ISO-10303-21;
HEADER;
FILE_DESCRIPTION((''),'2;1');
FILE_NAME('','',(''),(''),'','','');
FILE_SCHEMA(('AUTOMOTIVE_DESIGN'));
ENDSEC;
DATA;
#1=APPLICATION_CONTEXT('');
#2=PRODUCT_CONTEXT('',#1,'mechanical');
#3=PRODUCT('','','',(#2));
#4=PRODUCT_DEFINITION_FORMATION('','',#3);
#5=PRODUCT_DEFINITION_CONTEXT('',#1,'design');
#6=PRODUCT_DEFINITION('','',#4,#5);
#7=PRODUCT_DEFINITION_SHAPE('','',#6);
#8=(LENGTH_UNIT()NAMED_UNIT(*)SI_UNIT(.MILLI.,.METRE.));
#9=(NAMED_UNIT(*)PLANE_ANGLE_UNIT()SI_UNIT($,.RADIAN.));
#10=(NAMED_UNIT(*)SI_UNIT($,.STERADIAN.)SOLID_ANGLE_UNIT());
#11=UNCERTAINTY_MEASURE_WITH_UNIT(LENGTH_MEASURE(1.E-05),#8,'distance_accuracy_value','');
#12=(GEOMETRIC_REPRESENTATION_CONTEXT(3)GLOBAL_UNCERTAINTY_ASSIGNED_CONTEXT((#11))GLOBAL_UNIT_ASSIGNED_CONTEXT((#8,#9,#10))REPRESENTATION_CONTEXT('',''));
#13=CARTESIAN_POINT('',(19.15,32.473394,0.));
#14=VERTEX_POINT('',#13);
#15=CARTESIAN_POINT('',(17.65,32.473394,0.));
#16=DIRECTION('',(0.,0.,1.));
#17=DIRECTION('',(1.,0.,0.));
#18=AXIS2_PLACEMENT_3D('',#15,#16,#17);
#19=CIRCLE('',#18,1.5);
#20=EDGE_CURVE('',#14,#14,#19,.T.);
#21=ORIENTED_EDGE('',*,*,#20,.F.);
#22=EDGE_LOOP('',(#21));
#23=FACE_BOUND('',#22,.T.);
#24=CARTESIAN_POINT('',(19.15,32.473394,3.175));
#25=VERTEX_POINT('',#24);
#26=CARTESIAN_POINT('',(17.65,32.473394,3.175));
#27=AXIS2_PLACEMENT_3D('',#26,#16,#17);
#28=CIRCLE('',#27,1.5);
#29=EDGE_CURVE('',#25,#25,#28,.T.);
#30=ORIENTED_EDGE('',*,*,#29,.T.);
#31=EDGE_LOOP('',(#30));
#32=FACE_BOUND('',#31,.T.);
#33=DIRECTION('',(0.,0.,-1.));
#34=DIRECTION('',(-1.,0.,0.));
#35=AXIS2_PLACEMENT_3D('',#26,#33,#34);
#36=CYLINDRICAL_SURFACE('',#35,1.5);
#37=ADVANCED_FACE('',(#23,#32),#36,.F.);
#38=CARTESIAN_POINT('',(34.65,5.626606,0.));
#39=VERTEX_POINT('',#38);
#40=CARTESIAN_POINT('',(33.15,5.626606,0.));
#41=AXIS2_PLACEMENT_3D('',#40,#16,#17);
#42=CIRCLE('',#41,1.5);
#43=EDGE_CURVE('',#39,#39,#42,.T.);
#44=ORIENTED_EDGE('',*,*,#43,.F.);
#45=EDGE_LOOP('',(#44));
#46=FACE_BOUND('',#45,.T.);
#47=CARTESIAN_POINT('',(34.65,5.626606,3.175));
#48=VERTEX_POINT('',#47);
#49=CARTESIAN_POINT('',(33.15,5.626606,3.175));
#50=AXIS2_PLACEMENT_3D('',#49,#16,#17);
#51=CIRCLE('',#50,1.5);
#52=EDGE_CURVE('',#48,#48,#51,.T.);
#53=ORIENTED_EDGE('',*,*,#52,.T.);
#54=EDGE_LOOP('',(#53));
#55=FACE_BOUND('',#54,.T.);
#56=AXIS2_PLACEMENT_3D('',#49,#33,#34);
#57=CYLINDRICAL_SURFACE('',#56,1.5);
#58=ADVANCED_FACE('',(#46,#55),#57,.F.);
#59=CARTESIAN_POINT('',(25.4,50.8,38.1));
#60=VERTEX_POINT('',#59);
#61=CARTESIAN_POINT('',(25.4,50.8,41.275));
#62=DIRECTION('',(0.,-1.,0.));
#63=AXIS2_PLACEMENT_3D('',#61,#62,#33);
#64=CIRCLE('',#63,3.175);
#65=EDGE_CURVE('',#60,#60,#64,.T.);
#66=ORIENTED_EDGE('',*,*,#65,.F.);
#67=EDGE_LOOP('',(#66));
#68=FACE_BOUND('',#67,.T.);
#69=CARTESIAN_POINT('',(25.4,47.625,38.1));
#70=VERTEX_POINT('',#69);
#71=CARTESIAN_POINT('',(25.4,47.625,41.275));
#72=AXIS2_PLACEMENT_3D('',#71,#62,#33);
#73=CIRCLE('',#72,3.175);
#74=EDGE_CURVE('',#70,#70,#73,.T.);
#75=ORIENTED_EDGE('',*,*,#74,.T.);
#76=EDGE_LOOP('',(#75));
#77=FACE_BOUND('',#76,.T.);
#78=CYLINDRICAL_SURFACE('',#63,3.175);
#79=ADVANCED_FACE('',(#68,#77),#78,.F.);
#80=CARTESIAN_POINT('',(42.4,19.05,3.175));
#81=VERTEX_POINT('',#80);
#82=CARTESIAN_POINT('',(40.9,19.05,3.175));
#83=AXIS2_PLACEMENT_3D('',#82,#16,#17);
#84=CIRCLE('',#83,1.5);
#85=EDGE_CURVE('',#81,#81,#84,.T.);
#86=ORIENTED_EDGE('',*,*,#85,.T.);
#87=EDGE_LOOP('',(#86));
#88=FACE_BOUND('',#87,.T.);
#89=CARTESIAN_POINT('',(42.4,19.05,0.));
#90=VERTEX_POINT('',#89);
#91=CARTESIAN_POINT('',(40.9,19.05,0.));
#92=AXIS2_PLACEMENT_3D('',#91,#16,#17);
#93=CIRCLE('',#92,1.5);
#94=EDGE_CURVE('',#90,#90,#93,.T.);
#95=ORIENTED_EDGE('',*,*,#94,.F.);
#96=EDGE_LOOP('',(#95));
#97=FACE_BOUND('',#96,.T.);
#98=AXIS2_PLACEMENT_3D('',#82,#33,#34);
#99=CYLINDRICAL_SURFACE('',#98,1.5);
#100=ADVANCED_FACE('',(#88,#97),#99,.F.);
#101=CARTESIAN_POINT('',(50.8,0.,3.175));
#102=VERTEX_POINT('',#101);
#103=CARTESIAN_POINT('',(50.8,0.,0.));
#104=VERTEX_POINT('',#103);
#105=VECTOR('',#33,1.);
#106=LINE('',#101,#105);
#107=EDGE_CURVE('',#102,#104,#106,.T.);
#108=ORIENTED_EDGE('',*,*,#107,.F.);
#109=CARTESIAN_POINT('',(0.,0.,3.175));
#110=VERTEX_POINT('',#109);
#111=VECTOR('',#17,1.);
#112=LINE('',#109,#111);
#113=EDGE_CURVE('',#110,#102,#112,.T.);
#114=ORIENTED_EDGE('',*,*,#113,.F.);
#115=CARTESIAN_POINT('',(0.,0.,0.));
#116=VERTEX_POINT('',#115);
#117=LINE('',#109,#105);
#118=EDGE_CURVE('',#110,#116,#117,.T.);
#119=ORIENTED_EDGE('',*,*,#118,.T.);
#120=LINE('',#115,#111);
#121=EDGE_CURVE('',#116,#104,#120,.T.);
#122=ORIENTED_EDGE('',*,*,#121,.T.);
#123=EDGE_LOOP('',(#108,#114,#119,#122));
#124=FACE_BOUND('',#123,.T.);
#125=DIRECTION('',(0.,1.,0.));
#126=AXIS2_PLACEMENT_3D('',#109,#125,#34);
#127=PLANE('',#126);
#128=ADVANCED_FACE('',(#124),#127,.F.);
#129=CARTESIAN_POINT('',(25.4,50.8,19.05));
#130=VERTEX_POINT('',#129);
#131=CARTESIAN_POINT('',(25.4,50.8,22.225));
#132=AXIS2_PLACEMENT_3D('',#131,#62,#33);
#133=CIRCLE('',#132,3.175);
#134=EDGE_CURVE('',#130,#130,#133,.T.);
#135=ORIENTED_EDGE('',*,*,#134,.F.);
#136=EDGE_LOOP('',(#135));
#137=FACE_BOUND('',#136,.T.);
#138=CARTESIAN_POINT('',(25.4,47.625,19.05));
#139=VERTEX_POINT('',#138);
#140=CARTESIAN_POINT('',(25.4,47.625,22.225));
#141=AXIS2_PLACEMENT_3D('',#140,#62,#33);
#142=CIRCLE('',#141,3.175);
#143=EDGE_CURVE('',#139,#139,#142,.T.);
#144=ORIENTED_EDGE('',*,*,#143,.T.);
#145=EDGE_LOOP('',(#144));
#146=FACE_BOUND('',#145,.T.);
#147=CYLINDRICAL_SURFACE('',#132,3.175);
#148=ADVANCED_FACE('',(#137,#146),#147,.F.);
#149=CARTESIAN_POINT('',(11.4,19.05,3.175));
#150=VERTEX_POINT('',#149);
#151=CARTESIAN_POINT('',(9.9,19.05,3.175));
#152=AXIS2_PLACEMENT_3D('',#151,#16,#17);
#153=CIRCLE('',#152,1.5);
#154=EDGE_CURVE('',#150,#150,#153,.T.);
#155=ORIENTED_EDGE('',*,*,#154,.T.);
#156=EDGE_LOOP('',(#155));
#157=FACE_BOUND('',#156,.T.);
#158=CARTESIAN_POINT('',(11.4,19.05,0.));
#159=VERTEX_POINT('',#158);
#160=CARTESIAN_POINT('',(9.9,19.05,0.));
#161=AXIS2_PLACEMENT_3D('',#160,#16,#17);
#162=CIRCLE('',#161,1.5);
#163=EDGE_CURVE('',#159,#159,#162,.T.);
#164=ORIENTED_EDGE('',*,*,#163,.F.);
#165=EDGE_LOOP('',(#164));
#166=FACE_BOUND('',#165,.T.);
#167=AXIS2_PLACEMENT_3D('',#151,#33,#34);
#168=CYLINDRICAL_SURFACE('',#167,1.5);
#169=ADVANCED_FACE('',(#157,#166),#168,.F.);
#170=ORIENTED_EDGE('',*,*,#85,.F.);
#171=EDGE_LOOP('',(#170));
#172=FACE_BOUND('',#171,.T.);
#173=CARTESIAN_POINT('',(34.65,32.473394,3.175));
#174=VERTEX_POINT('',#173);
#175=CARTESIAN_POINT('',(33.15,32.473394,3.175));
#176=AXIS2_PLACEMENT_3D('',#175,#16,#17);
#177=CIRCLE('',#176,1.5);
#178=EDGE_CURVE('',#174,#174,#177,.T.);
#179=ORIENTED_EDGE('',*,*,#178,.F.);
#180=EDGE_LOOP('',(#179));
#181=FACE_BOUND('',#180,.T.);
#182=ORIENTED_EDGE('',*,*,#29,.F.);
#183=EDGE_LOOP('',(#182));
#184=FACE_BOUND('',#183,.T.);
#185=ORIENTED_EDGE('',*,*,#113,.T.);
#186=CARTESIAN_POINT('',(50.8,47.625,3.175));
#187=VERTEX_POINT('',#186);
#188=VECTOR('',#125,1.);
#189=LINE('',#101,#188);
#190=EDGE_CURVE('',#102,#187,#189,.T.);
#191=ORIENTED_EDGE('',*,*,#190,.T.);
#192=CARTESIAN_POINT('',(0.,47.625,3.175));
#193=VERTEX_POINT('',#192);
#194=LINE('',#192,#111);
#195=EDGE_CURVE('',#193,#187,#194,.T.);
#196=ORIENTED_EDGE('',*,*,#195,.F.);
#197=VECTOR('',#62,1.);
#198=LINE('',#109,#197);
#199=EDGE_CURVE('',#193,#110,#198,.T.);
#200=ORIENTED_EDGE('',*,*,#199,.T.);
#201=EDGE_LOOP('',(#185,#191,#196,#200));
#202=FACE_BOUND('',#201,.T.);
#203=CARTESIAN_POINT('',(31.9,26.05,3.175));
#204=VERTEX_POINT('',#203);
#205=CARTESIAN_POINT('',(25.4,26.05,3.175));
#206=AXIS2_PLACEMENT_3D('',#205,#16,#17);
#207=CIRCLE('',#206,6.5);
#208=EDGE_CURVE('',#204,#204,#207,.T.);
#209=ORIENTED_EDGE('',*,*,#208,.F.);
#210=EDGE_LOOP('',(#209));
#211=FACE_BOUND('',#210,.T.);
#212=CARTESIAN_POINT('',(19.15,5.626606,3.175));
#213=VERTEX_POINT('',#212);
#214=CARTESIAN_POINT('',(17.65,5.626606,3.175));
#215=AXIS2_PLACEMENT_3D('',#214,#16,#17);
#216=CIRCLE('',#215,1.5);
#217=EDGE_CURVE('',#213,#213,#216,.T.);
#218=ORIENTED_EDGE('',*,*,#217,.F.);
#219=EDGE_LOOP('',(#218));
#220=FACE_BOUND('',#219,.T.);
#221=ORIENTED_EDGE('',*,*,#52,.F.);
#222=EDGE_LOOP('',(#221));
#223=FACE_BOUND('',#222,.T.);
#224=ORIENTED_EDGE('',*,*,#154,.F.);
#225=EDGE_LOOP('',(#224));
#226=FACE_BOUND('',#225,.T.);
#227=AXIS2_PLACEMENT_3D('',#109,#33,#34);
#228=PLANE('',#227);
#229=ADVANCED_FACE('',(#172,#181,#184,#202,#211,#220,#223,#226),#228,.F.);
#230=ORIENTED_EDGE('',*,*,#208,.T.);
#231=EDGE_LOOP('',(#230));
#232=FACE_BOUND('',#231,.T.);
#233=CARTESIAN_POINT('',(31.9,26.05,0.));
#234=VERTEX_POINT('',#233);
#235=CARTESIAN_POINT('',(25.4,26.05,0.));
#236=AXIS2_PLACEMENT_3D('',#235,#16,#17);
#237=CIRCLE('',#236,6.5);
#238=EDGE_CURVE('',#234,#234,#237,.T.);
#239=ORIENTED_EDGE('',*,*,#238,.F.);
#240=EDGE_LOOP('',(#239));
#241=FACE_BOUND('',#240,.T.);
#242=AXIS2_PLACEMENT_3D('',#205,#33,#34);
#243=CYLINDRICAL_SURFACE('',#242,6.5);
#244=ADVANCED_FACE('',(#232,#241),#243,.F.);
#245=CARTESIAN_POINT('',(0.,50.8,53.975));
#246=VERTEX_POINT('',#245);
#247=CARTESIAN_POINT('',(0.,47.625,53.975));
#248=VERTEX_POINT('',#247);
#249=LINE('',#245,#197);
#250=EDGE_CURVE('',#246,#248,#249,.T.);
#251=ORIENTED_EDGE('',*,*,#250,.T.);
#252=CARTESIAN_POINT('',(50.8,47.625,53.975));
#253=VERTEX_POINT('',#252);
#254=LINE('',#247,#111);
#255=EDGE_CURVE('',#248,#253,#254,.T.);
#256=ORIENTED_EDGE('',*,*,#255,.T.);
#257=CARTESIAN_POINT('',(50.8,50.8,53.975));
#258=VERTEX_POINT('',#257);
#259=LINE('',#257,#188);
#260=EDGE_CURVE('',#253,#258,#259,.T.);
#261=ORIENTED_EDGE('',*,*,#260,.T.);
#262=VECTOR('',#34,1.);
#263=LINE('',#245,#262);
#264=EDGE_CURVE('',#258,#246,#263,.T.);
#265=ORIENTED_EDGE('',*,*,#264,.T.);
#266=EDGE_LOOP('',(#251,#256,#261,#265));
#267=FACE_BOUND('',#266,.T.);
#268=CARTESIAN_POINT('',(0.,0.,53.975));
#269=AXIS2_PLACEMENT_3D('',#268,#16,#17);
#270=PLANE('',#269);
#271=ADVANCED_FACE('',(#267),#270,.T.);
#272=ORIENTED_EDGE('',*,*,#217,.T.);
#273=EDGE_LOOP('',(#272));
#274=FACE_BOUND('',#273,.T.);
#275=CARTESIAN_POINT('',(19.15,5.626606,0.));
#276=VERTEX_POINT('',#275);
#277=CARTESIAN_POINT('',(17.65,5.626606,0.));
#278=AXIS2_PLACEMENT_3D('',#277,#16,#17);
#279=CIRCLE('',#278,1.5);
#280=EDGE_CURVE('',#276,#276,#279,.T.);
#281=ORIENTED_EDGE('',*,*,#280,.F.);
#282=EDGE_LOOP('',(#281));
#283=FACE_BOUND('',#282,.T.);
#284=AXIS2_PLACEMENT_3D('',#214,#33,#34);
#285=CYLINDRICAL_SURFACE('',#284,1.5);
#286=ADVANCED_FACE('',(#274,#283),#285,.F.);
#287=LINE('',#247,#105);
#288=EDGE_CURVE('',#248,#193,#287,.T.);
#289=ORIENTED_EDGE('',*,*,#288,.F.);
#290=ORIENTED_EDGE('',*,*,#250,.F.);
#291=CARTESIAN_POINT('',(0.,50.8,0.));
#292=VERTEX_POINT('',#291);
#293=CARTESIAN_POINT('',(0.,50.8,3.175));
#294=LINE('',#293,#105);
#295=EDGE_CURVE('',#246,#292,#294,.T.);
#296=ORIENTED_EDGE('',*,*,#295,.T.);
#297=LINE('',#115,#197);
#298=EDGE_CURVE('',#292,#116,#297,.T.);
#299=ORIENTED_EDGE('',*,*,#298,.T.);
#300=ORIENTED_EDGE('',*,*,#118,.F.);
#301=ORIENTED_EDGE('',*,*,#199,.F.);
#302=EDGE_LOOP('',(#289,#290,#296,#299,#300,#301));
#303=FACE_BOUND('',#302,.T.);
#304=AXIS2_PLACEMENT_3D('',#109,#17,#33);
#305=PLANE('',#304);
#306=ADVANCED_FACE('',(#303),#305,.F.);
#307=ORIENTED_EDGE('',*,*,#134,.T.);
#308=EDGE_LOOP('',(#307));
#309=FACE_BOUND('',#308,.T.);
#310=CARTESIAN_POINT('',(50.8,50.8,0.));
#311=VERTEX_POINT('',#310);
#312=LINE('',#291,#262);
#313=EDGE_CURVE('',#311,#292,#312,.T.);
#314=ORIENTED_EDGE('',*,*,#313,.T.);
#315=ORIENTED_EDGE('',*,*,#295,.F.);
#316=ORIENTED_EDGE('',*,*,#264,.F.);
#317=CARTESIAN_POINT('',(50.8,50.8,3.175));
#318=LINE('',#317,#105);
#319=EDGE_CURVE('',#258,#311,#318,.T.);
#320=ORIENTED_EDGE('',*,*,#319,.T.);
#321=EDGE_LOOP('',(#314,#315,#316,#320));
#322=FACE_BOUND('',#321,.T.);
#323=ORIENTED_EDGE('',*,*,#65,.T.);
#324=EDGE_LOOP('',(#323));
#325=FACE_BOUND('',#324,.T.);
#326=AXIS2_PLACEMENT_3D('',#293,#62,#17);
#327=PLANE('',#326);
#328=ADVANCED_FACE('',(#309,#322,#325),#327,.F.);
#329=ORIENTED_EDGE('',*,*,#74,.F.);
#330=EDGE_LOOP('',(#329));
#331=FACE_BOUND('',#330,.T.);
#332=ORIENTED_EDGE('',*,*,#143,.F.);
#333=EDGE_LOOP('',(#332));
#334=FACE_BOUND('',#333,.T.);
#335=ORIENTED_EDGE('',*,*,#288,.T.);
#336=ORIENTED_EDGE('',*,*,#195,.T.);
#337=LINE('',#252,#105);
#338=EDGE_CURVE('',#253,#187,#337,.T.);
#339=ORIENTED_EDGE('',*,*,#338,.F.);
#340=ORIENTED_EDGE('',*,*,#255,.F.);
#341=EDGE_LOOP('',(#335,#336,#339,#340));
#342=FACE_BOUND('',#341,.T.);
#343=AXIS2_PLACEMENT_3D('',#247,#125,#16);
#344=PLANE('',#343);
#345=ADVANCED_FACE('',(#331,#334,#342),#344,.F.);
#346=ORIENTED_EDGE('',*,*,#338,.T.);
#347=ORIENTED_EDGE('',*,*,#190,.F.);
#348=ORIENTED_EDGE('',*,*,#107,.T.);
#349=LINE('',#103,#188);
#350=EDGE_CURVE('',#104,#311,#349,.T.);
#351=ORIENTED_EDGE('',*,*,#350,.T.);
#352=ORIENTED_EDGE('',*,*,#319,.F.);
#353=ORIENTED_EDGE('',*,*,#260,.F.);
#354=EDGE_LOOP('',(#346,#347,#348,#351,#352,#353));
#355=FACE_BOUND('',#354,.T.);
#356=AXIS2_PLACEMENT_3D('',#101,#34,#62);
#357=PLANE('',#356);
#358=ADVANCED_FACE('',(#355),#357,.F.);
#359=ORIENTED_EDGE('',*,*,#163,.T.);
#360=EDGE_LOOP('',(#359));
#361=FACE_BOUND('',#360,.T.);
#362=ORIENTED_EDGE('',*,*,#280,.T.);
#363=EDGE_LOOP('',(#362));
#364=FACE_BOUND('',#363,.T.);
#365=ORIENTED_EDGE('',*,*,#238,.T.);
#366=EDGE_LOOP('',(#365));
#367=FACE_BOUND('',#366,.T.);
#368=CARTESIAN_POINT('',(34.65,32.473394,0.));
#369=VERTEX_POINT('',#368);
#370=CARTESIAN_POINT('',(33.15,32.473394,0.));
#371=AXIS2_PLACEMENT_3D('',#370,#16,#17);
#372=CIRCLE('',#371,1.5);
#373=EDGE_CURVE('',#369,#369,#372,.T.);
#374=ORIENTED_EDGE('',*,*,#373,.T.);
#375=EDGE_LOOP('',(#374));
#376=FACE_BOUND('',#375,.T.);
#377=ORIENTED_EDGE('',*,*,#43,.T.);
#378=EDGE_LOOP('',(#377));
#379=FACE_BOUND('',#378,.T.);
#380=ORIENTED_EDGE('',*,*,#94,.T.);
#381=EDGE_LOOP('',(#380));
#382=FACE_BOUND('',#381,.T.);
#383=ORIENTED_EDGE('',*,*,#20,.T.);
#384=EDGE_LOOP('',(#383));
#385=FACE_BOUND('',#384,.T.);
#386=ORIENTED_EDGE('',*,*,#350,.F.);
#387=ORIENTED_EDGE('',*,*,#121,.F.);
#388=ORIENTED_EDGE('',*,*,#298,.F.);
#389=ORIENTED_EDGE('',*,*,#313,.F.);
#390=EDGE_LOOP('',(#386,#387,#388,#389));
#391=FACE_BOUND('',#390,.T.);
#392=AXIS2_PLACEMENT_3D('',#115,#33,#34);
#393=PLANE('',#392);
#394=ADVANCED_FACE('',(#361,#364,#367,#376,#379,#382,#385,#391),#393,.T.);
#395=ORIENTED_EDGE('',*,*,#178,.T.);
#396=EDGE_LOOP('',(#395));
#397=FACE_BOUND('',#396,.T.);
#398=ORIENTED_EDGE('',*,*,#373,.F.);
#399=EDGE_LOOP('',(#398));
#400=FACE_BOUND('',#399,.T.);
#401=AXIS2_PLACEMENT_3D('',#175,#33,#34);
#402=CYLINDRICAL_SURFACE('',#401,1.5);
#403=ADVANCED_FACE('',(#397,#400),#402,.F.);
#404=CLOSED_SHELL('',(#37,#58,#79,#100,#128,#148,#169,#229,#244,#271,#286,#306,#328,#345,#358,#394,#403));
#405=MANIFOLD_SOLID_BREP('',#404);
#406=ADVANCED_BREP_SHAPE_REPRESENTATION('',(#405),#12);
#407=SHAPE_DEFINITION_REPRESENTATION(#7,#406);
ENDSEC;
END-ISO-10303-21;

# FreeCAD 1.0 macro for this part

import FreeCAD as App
import Part
import Sketcher
Q = App.Units.Quantity


def add_polygon(sketch, points):
    """Adds a closed chain of lines whose ends are joined by coincident constraints."""
    first, n = sketch.GeometryCount, len(points)
    for a, b in zip(points, points[1:] + points[:1]):
        sketch.addGeometry(Part.LineSegment(App.Vector(*a, 0), App.Vector(*b, 0)), False)
    for i in range(n):
        sketch.addConstraint(Sketcher.Constraint("Coincident", first + i, 2, first + (i + 1) % n, 1))

doc = App.newDocument("Part")
params = doc.addObject("Spreadsheet::Sheet", "Params")
for row, (alias, value) in enumerate([
    ("sketch1_width", "2 in"),
    ("pad1_length", "0.125 in"),
    ("sketch2_width", "2 in"),
    ("sketch2_height", "0.125 in"),
    ("pad2_length", "2 in"),
    ("sketch3_diameter", "0.25 in"),
], start=1):
    params.set(f"A{row}", alias)
    params.set(f"B{row}", "=" + value)
    params.setAlias(f"B{row}", alias)

body = doc.addObject("PartDesign::Body", "Body")

# Sketch on XY plane
sketch1 = body.newObject("Sketcher::SketchObject", "Sketch")
sketch1.AttachmentSupport = (doc.getObject("XY_Plane"), [""])
sketch1.MapMode = "FlatFace"
add_polygon(sketch1, [(0, 50.8), (0, 0), (50.8, 0), (50.8, 50.8)])  # lines 0-3
sketch1.addGeometry(Part.Circle(App.Vector(17.65, 5.626606, 0), App.Vector(0, 0, 1), 1.5), False)  # 4
sketch1.addGeometry(Part.Circle(App.Vector(33.15, 5.626606, 0), App.Vector(0, 0, 1), 1.5), False)  # 5
sketch1.addGeometry(Part.Circle(App.Vector(9.9, 19.05, 0), App.Vector(0, 0, 1), 1.5), False)  # 6
sketch1.addGeometry(Part.Circle(App.Vector(17.65, 32.473394, 0), App.Vector(0, 0, 1), 1.5), False)  # 7
sketch1.addGeometry(Part.Circle(App.Vector(25.4, 26.05, 0), App.Vector(0, 0, 1), 6.5), False)  # 8
sketch1.addGeometry(Part.Circle(App.Vector(40.9, 19.05, 0), App.Vector(0, 0, 1), 1.5), False)  # 9
sketch1.addGeometry(Part.Circle(App.Vector(33.15, 32.473394, 0), App.Vector(0, 0, 1), 1.5), False)  # 10
sketch1.addConstraint(Sketcher.Constraint("Vertical", 0))
sketch1.addConstraint(Sketcher.Constraint("Horizontal", 1))
sketch1.addConstraint(Sketcher.Constraint("Vertical", 2))
sketch1.addConstraint(Sketcher.Constraint("Horizontal", 3))
sketch1.addConstraint(Sketcher.Constraint("Coincident", 0, 2, -1, 1))
sketch1.addConstraint(Sketcher.Constraint("Equal", 4, 5))
sketch1.addConstraint(Sketcher.Constraint("Equal", 5, 6))
sketch1.addConstraint(Sketcher.Constraint("Equal", 6, 7))
sketch1.addConstraint(Sketcher.Constraint("Equal", 7, 9))
sketch1.addConstraint(Sketcher.Constraint("Equal", 9, 10))
sketch1.addConstraint(Sketcher.Constraint("Horizontal", 4, 3, 5, 3))
sketch1.addConstraint(Sketcher.Constraint("Horizontal", 6, 3, 9, 3))
sketch1.addConstraint(Sketcher.Constraint("Horizontal", 7, 3, 10, 3))
sketch1.addConstraint(Sketcher.Constraint("Vertical", 4, 3, 7, 3))
sketch1.addConstraint(Sketcher.Constraint("Vertical", 5, 3, 10, 3))
sketch1.addConstraint(Sketcher.Constraint("Equal", 3, 0))
sketch1.addConstraint(Sketcher.Constraint("DistanceX", 1, 1, 1, 2, Q("2 in")))
sketch1.addConstraint(Sketcher.Constraint("DistanceX", -1, 1, 8, 3, Q("1 in")))
sketch1.addConstraint(Sketcher.Constraint("Diameter", 4, Q("3 mm")))
sketch1.addConstraint(Sketcher.Constraint("Diameter", 8, Q("13 mm")))
sketch1.addConstraint(Sketcher.Constraint("DistanceY", -1, 1, 6, 3, Q("0.75 in")))
sketch1.addConstraint(Sketcher.Constraint("DistanceX", -1, 1, 4, 3, Q("17.65 mm")))
sketch1.addConstraint(Sketcher.Constraint("DistanceX", -1, 1, 5, 3, Q("33.15 mm")))
sketch1.addConstraint(Sketcher.Constraint("DistanceX", -1, 1, 6, 3, Q("9.9 mm")))
sketch1.addConstraint(Sketcher.Constraint("DistanceY", -1, 1, 8, 3, Q("26.05 mm")))
sketch1.addConstraint(Sketcher.Constraint("DistanceX", -1, 1, 9, 3, Q("40.9 mm")))
sketch1.addConstraint(Sketcher.Constraint("DistanceY", -1, 1, 4, 3, Q("5.626606 mm")))
sketch1.addConstraint(Sketcher.Constraint("DistanceY", -1, 1, 7, 3, Q("32.473394 mm")))
sketch1.setExpression("Constraints[20]", "Params.sketch1_width")
pad1 = body.newObject("PartDesign::Pad", "Pad")
pad1.Profile = sketch1
pad1.setExpression("Length", "Params.pad1_length")

# Sketch on XY plane
sketch2 = body.newObject("Sketcher::SketchObject", "Sketch001")
sketch2.AttachmentSupport = (doc.getObject("XY_Plane"), [""])
sketch2.MapMode = "FlatFace"
sketch2.AttachmentOffset = App.Placement(App.Vector(0, 0, 0.125 * 25.4), App.Rotation())
add_polygon(sketch2, [(0, 50.8), (0, 47.625), (50.8, 47.625), (50.8, 50.8)])  # lines 0-3
sketch2.addConstraint(Sketcher.Constraint("Vertical", 0))
sketch2.addConstraint(Sketcher.Constraint("Horizontal", 1))
sketch2.addConstraint(Sketcher.Constraint("Vertical", 2))
sketch2.addConstraint(Sketcher.Constraint("Horizontal", 3))
sketch2.addConstraint(Sketcher.Constraint("PointOnObject", 0, 2, -2))
sketch2.addConstraint(Sketcher.Constraint("DistanceX", 1, 1, 1, 2, Q("2 in")))
sketch2.addConstraint(Sketcher.Constraint("DistanceY", -1, 1, 2, 2, Q("2 in")))
sketch2.addConstraint(Sketcher.Constraint("DistanceY", 0, 2, 0, 1, Q("0.125 in")))
sketch2.setExpression("Constraints[9]", "Params.sketch2_width")
sketch2.setExpression("Constraints[11]", "Params.sketch2_height")
pad2 = body.newObject("PartDesign::Pad", "Pad001")
pad2.Profile = sketch2
pad2.setExpression("Length", "Params.pad2_length")

# Sketch on XZ plane
sketch3 = body.newObject("Sketcher::SketchObject", "Sketch002")
sketch3.AttachmentSupport = (doc.getObject("XZ_Plane"), [""])
sketch3.MapMode = "FlatFace"
sketch3.AttachmentOffset = App.Placement(App.Vector(0, 0, -1.875 * 25.4), App.Rotation())
sketch3.addGeometry(Part.Circle(App.Vector(25.4, 41.275, 0), App.Vector(0, 0, 1), 3.175), False)
sketch3.addGeometry(Part.Circle(App.Vector(25.4, 22.225, 0), App.Vector(0, 0, 1), 3.175), False)
sketch3.addConstraint(Sketcher.Constraint("Equal", 0, 1))
sketch3.addConstraint(Sketcher.Constraint("Vertical", 0, 3, 1, 3))
sketch3.addConstraint(Sketcher.Constraint("Diameter", 0, Q("0.25 in")))
sketch3.addConstraint(Sketcher.Constraint("DistanceX", -1, 1, 0, 3, Q("1 in")))
sketch3.addConstraint(Sketcher.Constraint("DistanceY", 1, 3, 0, 3, Q("0.75 in")))
sketch3.addConstraint(Sketcher.Constraint("DistanceY", -1, 1, 0, 3, Q("1.625 in")))
sketch3.setExpression("Constraints[2]", "Params.sketch3_diameter")
pocket1 = body.newObject("PartDesign::Pocket", "Pocket")
pocket1.Profile = sketch3
pocket1.Type = "ThroughAll"

doc.recompute()
